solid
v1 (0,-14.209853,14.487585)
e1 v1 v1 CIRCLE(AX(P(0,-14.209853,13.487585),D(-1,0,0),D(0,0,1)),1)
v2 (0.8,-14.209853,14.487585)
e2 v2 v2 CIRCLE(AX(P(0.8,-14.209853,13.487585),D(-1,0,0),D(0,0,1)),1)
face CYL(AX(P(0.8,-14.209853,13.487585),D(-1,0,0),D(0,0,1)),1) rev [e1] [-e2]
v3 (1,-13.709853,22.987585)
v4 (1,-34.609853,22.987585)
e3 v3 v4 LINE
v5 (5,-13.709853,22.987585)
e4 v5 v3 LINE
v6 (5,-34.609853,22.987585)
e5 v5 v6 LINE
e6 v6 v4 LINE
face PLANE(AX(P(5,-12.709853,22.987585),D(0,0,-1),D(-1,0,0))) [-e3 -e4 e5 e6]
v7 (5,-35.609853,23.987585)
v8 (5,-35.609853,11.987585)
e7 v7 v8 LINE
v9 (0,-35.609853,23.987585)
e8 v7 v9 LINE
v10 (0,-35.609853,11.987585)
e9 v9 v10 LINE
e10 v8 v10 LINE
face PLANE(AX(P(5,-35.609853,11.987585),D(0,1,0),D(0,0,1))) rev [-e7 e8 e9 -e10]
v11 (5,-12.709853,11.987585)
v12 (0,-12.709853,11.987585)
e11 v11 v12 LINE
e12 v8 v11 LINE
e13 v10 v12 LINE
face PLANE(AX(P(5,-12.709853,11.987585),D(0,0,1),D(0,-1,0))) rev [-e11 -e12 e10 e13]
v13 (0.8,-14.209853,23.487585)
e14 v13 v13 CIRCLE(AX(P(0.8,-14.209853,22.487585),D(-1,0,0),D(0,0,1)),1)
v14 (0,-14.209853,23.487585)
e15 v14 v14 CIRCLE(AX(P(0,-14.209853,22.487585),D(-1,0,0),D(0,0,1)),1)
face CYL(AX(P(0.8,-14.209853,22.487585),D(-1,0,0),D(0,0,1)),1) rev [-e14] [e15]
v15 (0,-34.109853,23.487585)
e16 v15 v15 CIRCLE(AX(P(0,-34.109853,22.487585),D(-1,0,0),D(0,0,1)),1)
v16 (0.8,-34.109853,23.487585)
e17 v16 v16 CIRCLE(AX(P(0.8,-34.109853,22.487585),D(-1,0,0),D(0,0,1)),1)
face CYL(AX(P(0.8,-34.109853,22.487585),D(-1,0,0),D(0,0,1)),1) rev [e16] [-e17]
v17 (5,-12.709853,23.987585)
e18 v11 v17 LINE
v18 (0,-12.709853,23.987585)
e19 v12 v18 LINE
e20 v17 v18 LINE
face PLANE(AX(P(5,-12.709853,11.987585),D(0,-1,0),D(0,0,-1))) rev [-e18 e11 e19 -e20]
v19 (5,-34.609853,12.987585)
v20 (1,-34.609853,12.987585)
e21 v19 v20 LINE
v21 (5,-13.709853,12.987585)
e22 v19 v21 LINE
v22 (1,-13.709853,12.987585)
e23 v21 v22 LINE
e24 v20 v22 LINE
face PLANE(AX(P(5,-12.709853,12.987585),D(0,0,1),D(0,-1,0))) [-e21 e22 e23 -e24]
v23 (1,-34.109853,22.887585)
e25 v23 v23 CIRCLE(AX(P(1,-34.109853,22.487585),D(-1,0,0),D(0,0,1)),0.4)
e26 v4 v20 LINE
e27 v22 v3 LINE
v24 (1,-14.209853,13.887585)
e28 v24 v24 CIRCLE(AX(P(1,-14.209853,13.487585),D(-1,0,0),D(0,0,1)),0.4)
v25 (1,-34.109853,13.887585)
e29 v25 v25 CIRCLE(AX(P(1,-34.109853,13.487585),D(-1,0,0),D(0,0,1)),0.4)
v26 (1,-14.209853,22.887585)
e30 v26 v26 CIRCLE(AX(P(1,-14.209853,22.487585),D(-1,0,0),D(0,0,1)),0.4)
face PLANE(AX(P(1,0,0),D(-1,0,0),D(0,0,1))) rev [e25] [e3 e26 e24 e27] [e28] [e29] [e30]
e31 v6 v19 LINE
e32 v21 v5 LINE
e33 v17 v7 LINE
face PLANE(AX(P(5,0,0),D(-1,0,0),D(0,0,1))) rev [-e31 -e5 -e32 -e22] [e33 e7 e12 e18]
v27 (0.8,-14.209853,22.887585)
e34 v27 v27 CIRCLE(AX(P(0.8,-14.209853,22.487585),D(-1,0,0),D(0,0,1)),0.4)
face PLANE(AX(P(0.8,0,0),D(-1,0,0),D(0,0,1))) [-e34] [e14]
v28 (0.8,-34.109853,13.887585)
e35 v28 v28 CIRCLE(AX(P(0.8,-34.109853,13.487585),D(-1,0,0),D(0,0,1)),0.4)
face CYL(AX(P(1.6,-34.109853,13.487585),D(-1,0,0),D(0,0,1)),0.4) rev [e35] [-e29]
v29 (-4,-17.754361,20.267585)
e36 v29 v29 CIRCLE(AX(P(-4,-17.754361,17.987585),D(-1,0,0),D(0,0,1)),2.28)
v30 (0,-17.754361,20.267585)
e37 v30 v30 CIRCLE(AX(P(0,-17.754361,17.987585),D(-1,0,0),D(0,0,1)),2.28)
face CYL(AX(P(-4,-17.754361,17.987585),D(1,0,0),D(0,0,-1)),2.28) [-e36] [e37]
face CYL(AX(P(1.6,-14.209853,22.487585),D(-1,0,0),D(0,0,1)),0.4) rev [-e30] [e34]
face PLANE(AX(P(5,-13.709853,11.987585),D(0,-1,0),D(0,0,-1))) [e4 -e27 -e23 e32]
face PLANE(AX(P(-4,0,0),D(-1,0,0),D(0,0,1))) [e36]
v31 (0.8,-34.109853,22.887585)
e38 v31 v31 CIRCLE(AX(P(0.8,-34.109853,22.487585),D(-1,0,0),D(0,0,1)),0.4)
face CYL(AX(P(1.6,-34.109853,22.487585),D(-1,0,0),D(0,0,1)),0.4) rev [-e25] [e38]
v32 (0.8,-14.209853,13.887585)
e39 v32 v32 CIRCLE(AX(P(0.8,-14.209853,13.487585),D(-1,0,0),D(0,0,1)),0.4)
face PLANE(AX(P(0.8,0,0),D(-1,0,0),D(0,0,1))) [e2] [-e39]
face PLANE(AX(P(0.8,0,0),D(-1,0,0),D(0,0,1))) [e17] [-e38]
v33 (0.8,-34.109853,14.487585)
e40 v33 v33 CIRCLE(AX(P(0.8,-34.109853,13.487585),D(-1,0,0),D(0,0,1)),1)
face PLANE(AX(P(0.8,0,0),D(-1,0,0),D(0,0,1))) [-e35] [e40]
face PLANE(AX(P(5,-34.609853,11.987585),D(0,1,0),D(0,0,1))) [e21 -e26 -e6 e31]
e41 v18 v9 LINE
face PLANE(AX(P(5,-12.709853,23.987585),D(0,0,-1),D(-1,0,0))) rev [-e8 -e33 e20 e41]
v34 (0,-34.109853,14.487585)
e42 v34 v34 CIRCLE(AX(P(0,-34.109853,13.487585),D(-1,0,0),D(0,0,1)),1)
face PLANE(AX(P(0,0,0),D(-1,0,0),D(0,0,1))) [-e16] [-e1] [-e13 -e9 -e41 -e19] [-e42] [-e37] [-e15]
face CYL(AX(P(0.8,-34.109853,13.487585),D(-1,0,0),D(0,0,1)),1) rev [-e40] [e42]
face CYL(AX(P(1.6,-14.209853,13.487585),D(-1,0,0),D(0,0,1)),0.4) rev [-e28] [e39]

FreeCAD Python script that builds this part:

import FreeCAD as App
import Part
import Sketcher
from FreeCAD import Vector
Q = App.Units.Quantity


def faces_at(feature, points):
    """Names of the faces that lie closest to the given points."""
    faces = feature.Shape.Faces
    near = lambda p: min(range(len(faces)), key=lambda i: faces[i].distToShape(Part.Vertex(*p))[0])
    return sorted({f"Face{near(p) + 1}" for p in points})


def add_polygon(sketch, points):
    """Adds a closed chain of lines whose ends are joined by coincident constraints."""
    first, n = sketch.GeometryCount, len(points)
    for a, b in zip(points, points[1:] + points[:1]):
        sketch.addGeometry(Part.LineSegment(App.Vector(*a, 0), App.Vector(*b, 0)), False)
    for i in range(n):
        sketch.addConstraint(Sketcher.Constraint("Coincident", first + i, 2, first + (i + 1) % n, 1))

doc = App.newDocument("Part")
params = doc.addObject("Spreadsheet::Sheet", "Params")
for row, (alias, value) in enumerate([
    ("sketch1_height", "12 mm"),
    ("sketch1_width", "22.9 mm"),
    ("pad1_length", "5 mm"),
    ("thickness_wall", "1 mm"),
    ("sketch2_diameter", "4.56 mm"),
    ("pad2_length", "4 mm"),
    ("sketch3_diameter", "2 mm"),
    ("pocket1_length", "0.8 mm"),
    ("sketch4_diameter", "0.8 mm"),
    ("pocket2_length", "0.8 mm"),
], start=1):
    params.set(f"A{row}", alias)
    params.set(f"B{row}", "=" + value)
    params.setAlias(f"B{row}", alias)

body = doc.addObject("PartDesign::Body", "Body")

# Sketch on YZ plane
sketch1 = body.newObject("Sketcher::SketchObject", "Sketch")
sketch1.AttachmentSupport = (doc.getObject("YZ_Plane"), [""])
sketch1.MapMode = "FlatFace"
add_polygon(sketch1, [(-12.709853, 23.987585), (-35.609853, 23.987585), (-35.609853, 11.987585), (-12.709853, 11.987585)])  # lines 0-3
sketch1.addConstraint(Sketcher.Constraint("Horizontal", 0))
sketch1.addConstraint(Sketcher.Constraint("Vertical", 1))
sketch1.addConstraint(Sketcher.Constraint("Horizontal", 2))
sketch1.addConstraint(Sketcher.Constraint("Vertical", 3))
sketch1.addConstraint(Sketcher.Constraint("DistanceY", 1, 2, 1, 1, Q("12 mm")))
sketch1.addConstraint(Sketcher.Constraint("DistanceX", 0, 2, 0, 1, Q("22.9 mm")))
sketch1.addConstraint(Sketcher.Constraint("DistanceX", 0, 2, -1, 1, Q("35.609853 mm")))
sketch1.addConstraint(Sketcher.Constraint("DistanceY", -1, 1, 0, 2, Q("23.987585 mm")))
sketch1.setExpression("Constraints[8]", "Params.sketch1_height")
sketch1.setExpression("Constraints[9]", "Params.sketch1_width")
pad1 = body.newObject("PartDesign::Pad", "Pad")
pad1.Profile = sketch1
pad1.setExpression("Length", "Params.pad1_length")
doc.recompute()

thickness = body.newObject("PartDesign::Thickness", "Thickness")
thickness.Base = (pad1, faces_at(pad1, [(5, -24.16, 17.988)]))
thickness.setExpression("Value", "Params.thickness_wall")
thickness.Reversed = True
thickness.Join = "Intersection"

# Sketch on YZ plane
sketch2 = body.newObject("Sketcher::SketchObject", "Sketch001")
sketch2.AttachmentSupport = (doc.getObject("YZ_Plane"), [""])
sketch2.MapMode = "FlatFace"
sketch2.addGeometry(Part.Circle(Vector(-17.754361, 17.987585, 0), Vector(0, 0, 1), 2.28), False)
sketch2.addConstraint(Sketcher.Constraint("Diameter", 0, Q("4.56 mm")))
sketch2.addConstraint(Sketcher.Constraint("DistanceX", 0, 3, -1, 1, Q("17.754361 mm")))
sketch2.addConstraint(Sketcher.Constraint("DistanceY", -1, 1, 0, 3, Q("17.987585 mm")))
sketch2.setExpression("Constraints[0]", "Params.sketch2_diameter")
pad2 = body.newObject("PartDesign::Pad", "Pad001")
pad2.Profile = sketch2
pad2.setExpression("Length", "Params.pad2_length")
pad2.Reversed = True

# Sketch on YZ plane
sketch3 = body.newObject("Sketcher::SketchObject", "Sketch002")
sketch3.AttachmentSupport = (doc.getObject("YZ_Plane"), [""])
sketch3.MapMode = "FlatFace"
sketch3.addGeometry(Part.Circle(Vector(-14.209853, 13.487585, 0), Vector(0, 0, 1), 1), False)
sketch3.addGeometry(Part.Circle(Vector(-14.209853, 22.487585, 0), Vector(0, 0, 1), 1), False)
sketch3.addGeometry(Part.Circle(Vector(-34.109853, 13.487585, 0), Vector(0, 0, 1), 1), False)
sketch3.addGeometry(Part.Circle(Vector(-34.109853, 22.487585, 0), Vector(0, 0, 1), 1), False)
sketch3.addConstraint(Sketcher.Constraint("Equal", 0, 1))
sketch3.addConstraint(Sketcher.Constraint("Equal", 1, 2))
sketch3.addConstraint(Sketcher.Constraint("Equal", 2, 3))
sketch3.addConstraint(Sketcher.Constraint("Horizontal", 0, 3, 2, 3))
sketch3.addConstraint(Sketcher.Constraint("Horizontal", 1, 3, 3, 3))
sketch3.addConstraint(Sketcher.Constraint("Vertical", 0, 3, 1, 3))
sketch3.addConstraint(Sketcher.Constraint("Vertical", 2, 3, 3, 3))
sketch3.addConstraint(Sketcher.Constraint("Diameter", 0, Q("2 mm")))
sketch3.addConstraint(Sketcher.Constraint("DistanceY", 0, 3, 1, 3, Q("9 mm")))
sketch3.addConstraint(Sketcher.Constraint("DistanceX", 2, 3, 0, 3, Q("19.9 mm")))
sketch3.addConstraint(Sketcher.Constraint("DistanceX", 0, 3, -1, 1, Q("14.209853 mm")))
sketch3.addConstraint(Sketcher.Constraint("DistanceY", -1, 1, 0, 3, Q("13.487585 mm")))
sketch3.setExpression("Constraints[7]", "Params.sketch3_diameter")
pocket1 = body.newObject("PartDesign::Pocket", "Pocket")
pocket1.Profile = sketch3
pocket1.setExpression("Length", "Params.pocket1_length")
pocket1.Reversed = True

# Sketch on YZ plane
sketch4 = body.newObject("Sketcher::SketchObject", "Sketch003")
sketch4.AttachmentSupport = (doc.getObject("YZ_Plane"), [""])
sketch4.MapMode = "FlatFace"
sketch4.AttachmentOffset = App.Placement(Vector(0, 0, 0.8), App.Rotation())
sketch4.addGeometry(Part.Circle(Vector(-14.209853, 13.487585, 0), Vector(0, 0, 1), 0.4), False)
sketch4.addGeometry(Part.Circle(Vector(-14.209853, 22.487585, 0), Vector(0, 0, 1), 0.4), False)
sketch4.addGeometry(Part.Circle(Vector(-34.109853, 13.487585, 0), Vector(0, 0, 1), 0.4), False)
sketch4.addGeometry(Part.Circle(Vector(-34.109853, 22.487585, 0), Vector(0, 0, 1), 0.4), False)
sketch4.addConstraint(Sketcher.Constraint("Equal", 0, 1))
sketch4.addConstraint(Sketcher.Constraint("Equal", 1, 2))
sketch4.addConstraint(Sketcher.Constraint("Equal", 2, 3))
sketch4.addConstraint(Sketcher.Constraint("Horizontal", 0, 3, 2, 3))
sketch4.addConstraint(Sketcher.Constraint("Horizontal", 1, 3, 3, 3))
sketch4.addConstraint(Sketcher.Constraint("Vertical", 0, 3, 1, 3))
sketch4.addConstraint(Sketcher.Constraint("Vertical", 2, 3, 3, 3))
sketch4.addConstraint(Sketcher.Constraint("Diameter", 0, Q("0.8 mm")))
sketch4.addConstraint(Sketcher.Constraint("DistanceY", 0, 3, 1, 3, Q("9 mm")))
sketch4.addConstraint(Sketcher.Constraint("DistanceX", 2, 3, 0, 3, Q("19.9 mm")))
sketch4.addConstraint(Sketcher.Constraint("DistanceX", 0, 3, -1, 1, Q("14.209853 mm")))
sketch4.addConstraint(Sketcher.Constraint("DistanceY", -1, 1, 0, 3, Q("13.487585 mm")))
sketch4.setExpression("Constraints[7]", "Params.sketch4_diameter")
pocket2 = body.newObject("PartDesign::Pocket", "Pocket001")
pocket2.Profile = sketch4
pocket2.setExpression("Length", "Params.pocket2_length")
pocket2.Reversed = True

doc.recompute()
